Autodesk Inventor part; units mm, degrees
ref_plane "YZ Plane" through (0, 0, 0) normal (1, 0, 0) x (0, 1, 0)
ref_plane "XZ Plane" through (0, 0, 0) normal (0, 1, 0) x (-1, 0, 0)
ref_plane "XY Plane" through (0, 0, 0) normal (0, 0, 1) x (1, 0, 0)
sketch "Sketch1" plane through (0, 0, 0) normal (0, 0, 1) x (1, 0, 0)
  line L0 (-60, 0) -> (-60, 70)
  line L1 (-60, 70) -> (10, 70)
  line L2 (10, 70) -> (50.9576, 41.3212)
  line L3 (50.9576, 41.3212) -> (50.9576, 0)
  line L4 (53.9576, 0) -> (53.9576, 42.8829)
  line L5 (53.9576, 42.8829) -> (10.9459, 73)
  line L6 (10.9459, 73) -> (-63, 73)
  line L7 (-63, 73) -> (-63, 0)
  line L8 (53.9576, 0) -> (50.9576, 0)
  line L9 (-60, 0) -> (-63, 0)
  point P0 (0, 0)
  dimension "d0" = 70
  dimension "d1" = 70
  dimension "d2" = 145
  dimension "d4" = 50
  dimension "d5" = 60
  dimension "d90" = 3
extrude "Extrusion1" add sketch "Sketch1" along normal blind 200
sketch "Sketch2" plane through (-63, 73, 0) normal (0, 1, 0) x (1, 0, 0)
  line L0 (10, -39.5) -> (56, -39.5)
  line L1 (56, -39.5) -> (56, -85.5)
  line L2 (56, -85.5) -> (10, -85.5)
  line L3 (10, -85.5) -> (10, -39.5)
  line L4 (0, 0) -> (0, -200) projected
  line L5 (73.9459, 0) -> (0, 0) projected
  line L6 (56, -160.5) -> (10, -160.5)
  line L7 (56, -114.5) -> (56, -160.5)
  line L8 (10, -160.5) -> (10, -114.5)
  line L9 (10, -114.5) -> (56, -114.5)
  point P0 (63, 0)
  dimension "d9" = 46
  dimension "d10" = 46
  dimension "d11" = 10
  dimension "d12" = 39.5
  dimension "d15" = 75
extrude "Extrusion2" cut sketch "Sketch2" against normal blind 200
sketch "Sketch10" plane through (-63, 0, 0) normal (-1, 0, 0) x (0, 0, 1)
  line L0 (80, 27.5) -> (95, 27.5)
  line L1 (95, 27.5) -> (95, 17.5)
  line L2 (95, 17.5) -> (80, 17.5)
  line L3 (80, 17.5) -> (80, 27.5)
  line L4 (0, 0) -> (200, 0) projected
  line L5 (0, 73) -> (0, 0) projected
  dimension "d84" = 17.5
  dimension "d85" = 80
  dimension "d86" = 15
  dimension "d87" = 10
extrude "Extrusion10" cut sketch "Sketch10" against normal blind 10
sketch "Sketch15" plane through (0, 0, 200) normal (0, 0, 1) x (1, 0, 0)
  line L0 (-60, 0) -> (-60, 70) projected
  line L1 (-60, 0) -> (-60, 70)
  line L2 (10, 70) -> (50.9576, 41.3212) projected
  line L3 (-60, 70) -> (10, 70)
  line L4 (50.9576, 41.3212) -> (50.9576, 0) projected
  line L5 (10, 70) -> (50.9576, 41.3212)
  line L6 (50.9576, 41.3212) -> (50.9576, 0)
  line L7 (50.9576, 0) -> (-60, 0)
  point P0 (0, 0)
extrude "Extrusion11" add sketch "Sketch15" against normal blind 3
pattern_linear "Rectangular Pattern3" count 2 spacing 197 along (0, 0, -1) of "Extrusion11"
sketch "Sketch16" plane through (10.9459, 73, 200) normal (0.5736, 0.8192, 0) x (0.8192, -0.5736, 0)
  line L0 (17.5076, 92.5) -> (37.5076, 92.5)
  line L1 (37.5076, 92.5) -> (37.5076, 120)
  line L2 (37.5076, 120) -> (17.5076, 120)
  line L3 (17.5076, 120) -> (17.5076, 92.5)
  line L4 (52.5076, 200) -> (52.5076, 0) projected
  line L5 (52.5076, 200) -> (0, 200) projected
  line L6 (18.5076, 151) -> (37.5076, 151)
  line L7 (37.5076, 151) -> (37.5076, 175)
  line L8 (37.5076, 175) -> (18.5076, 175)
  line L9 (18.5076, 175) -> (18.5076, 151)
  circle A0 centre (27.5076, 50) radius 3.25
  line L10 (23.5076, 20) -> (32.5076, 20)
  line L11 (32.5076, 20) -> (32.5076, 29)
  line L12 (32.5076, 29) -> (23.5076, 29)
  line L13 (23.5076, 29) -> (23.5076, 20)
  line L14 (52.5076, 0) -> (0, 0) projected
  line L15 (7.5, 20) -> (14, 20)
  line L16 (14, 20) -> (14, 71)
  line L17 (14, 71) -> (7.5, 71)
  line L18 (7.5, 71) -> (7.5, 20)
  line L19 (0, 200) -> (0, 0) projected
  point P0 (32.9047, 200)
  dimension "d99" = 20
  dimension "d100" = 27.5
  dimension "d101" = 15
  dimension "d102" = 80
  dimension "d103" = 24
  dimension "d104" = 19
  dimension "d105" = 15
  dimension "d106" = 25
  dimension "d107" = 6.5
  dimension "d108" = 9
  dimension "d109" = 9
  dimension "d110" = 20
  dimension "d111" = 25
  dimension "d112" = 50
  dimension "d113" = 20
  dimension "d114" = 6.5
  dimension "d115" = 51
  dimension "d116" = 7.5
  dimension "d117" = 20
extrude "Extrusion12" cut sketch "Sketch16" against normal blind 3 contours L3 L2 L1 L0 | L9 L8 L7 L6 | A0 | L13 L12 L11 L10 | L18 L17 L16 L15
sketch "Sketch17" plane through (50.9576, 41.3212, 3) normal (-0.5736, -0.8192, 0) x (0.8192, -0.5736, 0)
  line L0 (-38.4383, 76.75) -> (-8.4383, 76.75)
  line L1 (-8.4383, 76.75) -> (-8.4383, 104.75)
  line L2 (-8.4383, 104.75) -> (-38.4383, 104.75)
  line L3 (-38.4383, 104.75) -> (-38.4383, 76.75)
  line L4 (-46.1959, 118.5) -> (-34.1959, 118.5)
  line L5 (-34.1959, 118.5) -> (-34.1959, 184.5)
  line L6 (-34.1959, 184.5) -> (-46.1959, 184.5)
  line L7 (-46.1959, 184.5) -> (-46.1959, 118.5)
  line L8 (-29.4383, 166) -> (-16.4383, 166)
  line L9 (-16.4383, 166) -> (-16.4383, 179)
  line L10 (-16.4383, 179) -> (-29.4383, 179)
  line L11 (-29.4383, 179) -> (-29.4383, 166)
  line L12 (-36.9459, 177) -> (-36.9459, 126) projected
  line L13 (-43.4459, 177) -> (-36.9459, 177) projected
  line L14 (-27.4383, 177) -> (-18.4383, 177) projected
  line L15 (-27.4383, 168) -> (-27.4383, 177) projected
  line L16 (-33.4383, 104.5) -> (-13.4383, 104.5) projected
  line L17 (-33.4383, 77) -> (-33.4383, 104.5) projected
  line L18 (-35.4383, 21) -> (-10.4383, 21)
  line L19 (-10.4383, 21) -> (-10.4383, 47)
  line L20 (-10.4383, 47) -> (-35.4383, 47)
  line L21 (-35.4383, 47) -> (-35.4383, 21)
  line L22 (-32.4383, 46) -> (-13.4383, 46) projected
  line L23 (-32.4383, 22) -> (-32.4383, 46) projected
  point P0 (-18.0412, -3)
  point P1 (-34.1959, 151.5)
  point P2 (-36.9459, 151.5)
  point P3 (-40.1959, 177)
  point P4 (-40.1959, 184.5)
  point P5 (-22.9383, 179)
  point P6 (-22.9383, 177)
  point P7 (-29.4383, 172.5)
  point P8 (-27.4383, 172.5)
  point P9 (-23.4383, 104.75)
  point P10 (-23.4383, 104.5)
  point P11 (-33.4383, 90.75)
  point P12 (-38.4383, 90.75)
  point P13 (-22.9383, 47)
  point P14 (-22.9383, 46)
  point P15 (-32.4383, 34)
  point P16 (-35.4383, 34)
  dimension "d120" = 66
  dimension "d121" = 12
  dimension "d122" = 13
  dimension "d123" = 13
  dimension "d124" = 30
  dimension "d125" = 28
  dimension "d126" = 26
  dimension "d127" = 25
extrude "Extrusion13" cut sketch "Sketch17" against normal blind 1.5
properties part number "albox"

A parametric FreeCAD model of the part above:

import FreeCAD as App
import Part
import Sketcher
Q = App.Units.Quantity

doc = App.newDocument("Part")
body = doc.addObject("PartDesign::Body", "Body")

# Sketch on XY plane
sketch1 = body.newObject("Sketcher::SketchObject", "Sketch")
sketch1.AttachmentSupport = (doc.getObject("XY_Plane"), [""])
sketch1.MapMode = "FlatFace"
sketch1.addGeometry(Part.LineSegment(App.Vector(-63, 0, 0), App.Vector(-60, 0, 0)), False)
sketch1.addGeometry(Part.LineSegment(App.Vector(-60, 0, 0), App.Vector(-60, 70, 0)), False)
sketch1.addGeometry(Part.LineSegment(App.Vector(-60, 70, 0), App.Vector(10, 70, 0)), False)
sketch1.addGeometry(Part.LineSegment(App.Vector(10, 70, 0), App.Vector(50.9576, 41.3212, 0)), False)
sketch1.addGeometry(Part.LineSegment(App.Vector(50.9576, 41.3212, 0), App.Vector(50.9576, 0, 0)), False)
sketch1.addGeometry(Part.LineSegment(App.Vector(50.9576, 0, 0), App.Vector(53.9576, 0, 0)), False)
sketch1.addGeometry(Part.LineSegment(App.Vector(53.9576, 0, 0), App.Vector(53.9576, 42.8829, 0)), False)
sketch1.addGeometry(Part.LineSegment(App.Vector(53.9576, 42.8829, 0), App.Vector(10.9459, 73, 0)), False)
sketch1.addGeometry(Part.LineSegment(App.Vector(10.9459, 73, 0), App.Vector(-63, 73, 0)), False)
sketch1.addGeometry(Part.LineSegment(App.Vector(-63, 73, 0), App.Vector(-63, 0, 0)), False)
sketch1.addConstraint(Sketcher.Constraint("Coincident", 0, 2, 1, 1))
sketch1.addConstraint(Sketcher.Constraint("Coincident", 1, 2, 2, 1))
sketch1.addConstraint(Sketcher.Constraint("Coincident", 2, 2, 3, 1))
sketch1.addConstraint(Sketcher.Constraint("Coincident", 3, 2, 4, 1))
sketch1.addConstraint(Sketcher.Constraint("Coincident", 4, 2, 5, 1))
sketch1.addConstraint(Sketcher.Constraint("Coincident", 5, 2, 6, 1))
sketch1.addConstraint(Sketcher.Constraint("Coincident", 6, 2, 7, 1))
sketch1.addConstraint(Sketcher.Constraint("Coincident", 7, 2, 8, 1))
sketch1.addConstraint(Sketcher.Constraint("Coincident", 8, 2, 9, 1))
sketch1.addConstraint(Sketcher.Constraint("Coincident", 9, 2, 0, 1))
sketch1.addConstraint(Sketcher.Constraint("Horizontal", 0))
sketch1.addConstraint(Sketcher.Constraint("Vertical", 1))
sketch1.addConstraint(Sketcher.Constraint("Horizontal", 2))
sketch1.addConstraint(Sketcher.Constraint("Vertical", 4))
sketch1.addConstraint(Sketcher.Constraint("Horizontal", 5))
sketch1.addConstraint(Sketcher.Constraint("Vertical", 6))
sketch1.addConstraint(Sketcher.Constraint("Horizontal", 8))
sketch1.addConstraint(Sketcher.Constraint("Vertical", 9))
sketch1.addConstraint(Sketcher.Constraint("PointOnObject", 0, 2, -1))
sketch1.addConstraint(Sketcher.Constraint("PointOnObject", 4, 2, -1))
sketch1.addConstraint(Sketcher.Constraint("Parallel", 3, 7))
sketch1.addConstraint(Sketcher.Constraint("Equal", 0, 5))
sketch1.addConstraint(Sketcher.Constraint("Equal", 2, 1))
sketch1.addConstraint(Sketcher.Constraint("DistanceX", 0, 1, 0, 2, 3.0))
sketch1.addConstraint(Sketcher.Constraint("DistanceX", 2, 1, 2, 2, 70.0))
sketch1.addConstraint(Sketcher.Constraint("Angle", 7, Q("145 deg")))
sketch1.addConstraint(Sketcher.Constraint("Distance", 3, 50.0))
sketch1.addConstraint(Sketcher.Constraint("DistanceX", 0, 2, -1, 1, 60.0))
sketch1.addConstraint(Sketcher.Constraint("DistanceY", 2, 2, 7, 2, 3.0))
sketch1.addConstraint(Sketcher.Constraint("DistanceX", 8, 2, 8, 1, 73.946))
pad1 = body.newObject("PartDesign::Pad", "Pad")
pad1.Profile = sketch1
pad1.Length = 200

# Sketch on XZ plane
sketch2 = body.newObject("Sketcher::SketchObject", "Sketch001")
sketch2.AttachmentSupport = (doc.getObject("XZ_Plane"), [""])
sketch2.MapMode = "FlatFace"
sketch2.AttachmentOffset = App.Placement(App.Vector(0, 0, -73), App.Rotation())
sketch2.addGeometry(Part.LineSegment(App.Vector(-7, 39.5, 0), App.Vector(-53, 39.5, 0)), False)
sketch2.addGeometry(Part.LineSegment(App.Vector(-53, 39.5, 0), App.Vector(-53, 85.5, 0)), False)
sketch2.addGeometry(Part.LineSegment(App.Vector(-53, 85.5, 0), App.Vector(-7, 85.5, 0)), False)
sketch2.addGeometry(Part.LineSegment(App.Vector(-7, 85.5, 0), App.Vector(-7, 39.5, 0)), False)
sketch2.addGeometry(Part.LineSegment(App.Vector(-53, 160.5, 0), App.Vector(-7, 160.5, 0)), False)
sketch2.addGeometry(Part.LineSegment(App.Vector(-7, 160.5, 0), App.Vector(-7, 114.5, 0)), False)
sketch2.addGeometry(Part.LineSegment(App.Vector(-7, 114.5, 0), App.Vector(-53, 114.5, 0)), False)
sketch2.addGeometry(Part.LineSegment(App.Vector(-53, 114.5, 0), App.Vector(-53, 160.5, 0)), False)
sketch2.addConstraint(Sketcher.Constraint("Coincident", 0, 2, 1, 1))
sketch2.addConstraint(Sketcher.Constraint("Coincident", 1, 2, 2, 1))
sketch2.addConstraint(Sketcher.Constraint("Coincident", 2, 2, 3, 1))
sketch2.addConstraint(Sketcher.Constraint("Coincident", 3, 2, 0, 1))
sketch2.addConstraint(Sketcher.Constraint("Coincident", 4, 2, 5, 1))
sketch2.addConstraint(Sketcher.Constraint("Coincident", 5, 2, 6, 1))
sketch2.addConstraint(Sketcher.Constraint("Coincident", 6, 2, 7, 1))
sketch2.addConstraint(Sketcher.Constraint("Coincident", 7, 2, 4, 1))
sketch2.addConstraint(Sketcher.Constraint("Horizontal", 0))
sketch2.addConstraint(Sketcher.Constraint("Vertical", 1))
sketch2.addConstraint(Sketcher.Constraint("Horizontal", 2))
sketch2.addConstraint(Sketcher.Constraint("Vertical", 3))
sketch2.addConstraint(Sketcher.Constraint("Horizontal", 4))
sketch2.addConstraint(Sketcher.Constraint("Vertical", 5))
sketch2.addConstraint(Sketcher.Constraint("Horizontal", 6))
sketch2.addConstraint(Sketcher.Constraint("Vertical", 7))
sketch2.addConstraint(Sketcher.Constraint("Vertical", 3, 2, 4, 2))
sketch2.addConstraint(Sketcher.Constraint("Vertical", 1, 2, 6, 2))
sketch2.addConstraint(Sketcher.Constraint("Equal", 6, 1))
sketch2.addConstraint(Sketcher.Constraint("Equal", 3, 5))
sketch2.addConstraint(Sketcher.Constraint("DistanceX", 0, 2, 0, 1, 46.0))
sketch2.addConstraint(Sketcher.Constraint("DistanceY", 2, 2, 4, 2, 75.0))
sketch2.addConstraint(Sketcher.Constraint("DistanceY", -1, 1, 0, 2, 39.5))
sketch2.addConstraint(Sketcher.Constraint("DistanceX", 0, 2, -1, 1, 53.0))
pocket1 = body.newObject("PartDesign::Pocket", "Pocket")
pocket1.Profile = sketch2
pocket1.Length = 200
pocket1.Reversed = True

# Sketch on YZ plane
sketch3 = body.newObject("Sketcher::SketchObject", "Sketch002")
sketch3.AttachmentSupport = (doc.getObject("YZ_Plane"), [""])
sketch3.MapMode = "FlatFace"
sketch3.AttachmentOffset = App.Placement(App.Vector(0, 0, -63), App.Rotation())
sketch3.addGeometry(Part.LineSegment(App.Vector(27.5, 95, 0), App.Vector(27.5, 80, 0)), False)
sketch3.addGeometry(Part.LineSegment(App.Vector(27.5, 80, 0), App.Vector(17.5, 80, 0)), False)
sketch3.addGeometry(Part.LineSegment(App.Vector(17.5, 80, 0), App.Vector(17.5, 95, 0)), False)
sketch3.addGeometry(Part.LineSegment(App.Vector(17.5, 95, 0), App.Vector(27.5, 95, 0)), False)
sketch3.addConstraint(Sketcher.Constraint("Coincident", 0, 2, 1, 1))
sketch3.addConstraint(Sketcher.Constraint("Coincident", 1, 2, 2, 1))
sketch3.addConstraint(Sketcher.Constraint("Coincident", 2, 2, 3, 1))
sketch3.addConstraint(Sketcher.Constraint("Coincident", 3, 2, 0, 1))
sketch3.addConstraint(Sketcher.Constraint("Vertical", 0))
sketch3.addConstraint(Sketcher.Constraint("Horizontal", 1))
sketch3.addConstraint(Sketcher.Constraint("Vertical", 2))
sketch3.addConstraint(Sketcher.Constraint("Horizontal", 3))
sketch3.addConstraint(Sketcher.Constraint("DistanceX", 1, 2, 1, 1, 10.0))
sketch3.addConstraint(Sketcher.Constraint("DistanceY", 0, 2, 0, 1, 15.0))
sketch3.addConstraint(Sketcher.Constraint("DistanceY", -1, 1, 0, 2, 80.0))
sketch3.addConstraint(Sketcher.Constraint("DistanceX", -1, 1, 1, 2, 17.5))
pocket2 = body.newObject("PartDesign::Pocket", "Pocket001")
pocket2.Profile = sketch3
pocket2.Length = 10
pocket2.Reversed = True

# Sketch on XY plane
sketch4 = body.newObject("Sketcher::SketchObject", "Sketch003")
sketch4.AttachmentSupport = (doc.getObject("XY_Plane"), [""])
sketch4.MapMode = "FlatFace"
sketch4.AttachmentOffset = App.Placement(App.Vector(0, 0, 200), App.Rotation())
sketch4.addGeometry(Part.LineSegment(App.Vector(-60, 70, 0), App.Vector(-60, 0, 0)), False)
sketch4.addGeometry(Part.LineSegment(App.Vector(-60, 0, 0), App.Vector(50.9576, 0, 0)), False)
sketch4.addGeometry(Part.LineSegment(App.Vector(50.9576, 0, 0), App.Vector(50.9576, 41.3212, 0)), False)
sketch4.addGeometry(Part.LineSegment(App.Vector(50.9576, 41.3212, 0), App.Vector(10, 70, 0)), False)
sketch4.addGeometry(Part.LineSegment(App.Vector(10, 70, 0), App.Vector(-60, 70, 0)), False)
sketch4.addConstraint(Sketcher.Constraint("Coincident", 0, 2, 1, 1))
sketch4.addConstraint(Sketcher.Constraint("Coincident", 1, 2, 2, 1))
sketch4.addConstraint(Sketcher.Constraint("Coincident", 2, 2, 3, 1))
sketch4.addConstraint(Sketcher.Constraint("Coincident", 3, 2, 4, 1))
sketch4.addConstraint(Sketcher.Constraint("Coincident", 4, 2, 0, 1))
sketch4.addConstraint(Sketcher.Constraint("Vertical", 0))
sketch4.addConstraint(Sketcher.Constraint("Horizontal", 1))
sketch4.addConstraint(Sketcher.Constraint("Vertical", 2))
sketch4.addConstraint(Sketcher.Constraint("Horizontal", 4))
sketch4.addConstraint(Sketcher.Constraint("PointOnObject", 0, 2, -1))
sketch4.addConstraint(Sketcher.Constraint("Equal", 4, 0))
sketch4.addConstraint(Sketcher.Constraint("DistanceX", 4, 2, 4, 1, 70.0))
sketch4.addConstraint(Sketcher.Constraint("Angle", 3, Q("145 deg")))
sketch4.addConstraint(Sketcher.Constraint("Distance", 3, 50.0))
sketch4.addConstraint(Sketcher.Constraint("DistanceX", 0, 2, -1, 1, 60.0))
pad2 = body.newObject("PartDesign::Pad", "Pad001")
pad2.Profile = sketch4
pad2.Length = 3
pad2.Reversed = True
doc.recompute()

linearpattern = body.newObject("PartDesign::LinearPattern", "LinearPattern")
linearpattern.Originals = [pad2]
linearpattern.Direction = (doc.getObject("Z_Axis"), [""])
linearpattern.Mode = "offset"
linearpattern.Offset = 197
linearpattern.Occurrences = 2
linearpattern.Reversed = True
body.Tip = linearpattern

# Sketch on an angled plane
sketch5 = body.newObject("Sketcher::SketchObject", "Sketch004")
sketch5.Placement = App.Placement(App.Vector(10.9459, 73, 200), App.Rotation(App.Vector(0.819152044, -0.573576436, 0), App.Vector(0, 0, -0.999999999), App.Vector(0.573576436, 0.819152044, 0), "ZXY"))
sketch5.addGeometry(Part.LineSegment(App.Vector(17.5076, 120, 0), App.Vector(17.5076, 92.5, 0)), False)
sketch5.addGeometry(Part.LineSegment(App.Vector(17.5076, 92.5, 0), App.Vector(37.5076, 92.5, 0)), False)
sketch5.addGeometry(Part.LineSegment(App.Vector(37.5076, 92.5, 0), App.Vector(37.5076, 120, 0)), False)
sketch5.addGeometry(Part.LineSegment(App.Vector(37.5076, 120, 0), App.Vector(17.5076, 120, 0)), False)
sketch5.addGeometry(Part.LineSegment(App.Vector(18.5076, 175, 0), App.Vector(18.5076, 151, 0)), False)
sketch5.addGeometry(Part.LineSegment(App.Vector(18.5076, 151, 0), App.Vector(37.5076, 151, 0)), False)
sketch5.addGeometry(Part.LineSegment(App.Vector(37.5076, 151, 0), App.Vector(37.5076, 175, 0)), False)
sketch5.addGeometry(Part.LineSegment(App.Vector(37.5076, 175, 0), App.Vector(18.5076, 175, 0)), False)
sketch5.addGeometry(Part.Circle(App.Vector(27.5076, 50, 0), App.Vector(0, 0, 1), 3.25), False)
sketch5.addGeometry(Part.LineSegment(App.Vector(23.5076, 29, 0), App.Vector(23.5076, 20, 0)), False)
sketch5.addGeometry(Part.LineSegment(App.Vector(23.5076, 20, 0), App.Vector(32.5076, 20, 0)), False)
sketch5.addGeometry(Part.LineSegment(App.Vector(32.5076, 20, 0), App.Vector(32.5076, 29, 0)), False)
sketch5.addGeometry(Part.LineSegment(App.Vector(32.5076, 29, 0), App.Vector(23.5076, 29, 0)), False)
sketch5.addGeometry(Part.LineSegment(App.Vector(7.5, 71, 0), App.Vector(7.5, 20, 0)), False)
sketch5.addGeometry(Part.LineSegment(App.Vector(7.5, 20, 0), App.Vector(14, 20, 0)), False)
sketch5.addGeometry(Part.LineSegment(App.Vector(14, 20, 0), App.Vector(14, 71, 0)), False)
sketch5.addGeometry(Part.LineSegment(App.Vector(14, 71, 0), App.Vector(7.5, 71, 0)), False)
sketch5.addConstraint(Sketcher.Constraint("Coincident", 0, 2, 1, 1))
sketch5.addConstraint(Sketcher.Constraint("Coincident", 1, 2, 2, 1))
sketch5.addConstraint(Sketcher.Constraint("Coincident", 2, 2, 3, 1))
sketch5.addConstraint(Sketcher.Constraint("Coincident", 3, 2, 0, 1))
sketch5.addConstraint(Sketcher.Constraint("Coincident", 4, 2, 5, 1))
sketch5.addConstraint(Sketcher.Constraint("Coincident", 5, 2, 6, 1))
sketch5.addConstraint(Sketcher.Constraint("Coincident", 6, 2, 7, 1))
sketch5.addConstraint(Sketcher.Constraint("Coincident", 7, 2, 4, 1))
sketch5.addConstraint(Sketcher.Constraint("Coincident", 9, 2, 10, 1))
sketch5.addConstraint(Sketcher.Constraint("Coincident", 10, 2, 11, 1))
sketch5.addConstraint(Sketcher.Constraint("Coincident", 11, 2, 12, 1))
sketch5.addConstraint(Sketcher.Constraint("Coincident", 12, 2, 9, 1))
sketch5.addConstraint(Sketcher.Constraint("Coincident", 13, 2, 14, 1))
sketch5.addConstraint(Sketcher.Constraint("Coincident", 14, 2, 15, 1))
sketch5.addConstraint(Sketcher.Constraint("Coincident", 15, 2, 16, 1))
sketch5.addConstraint(Sketcher.Constraint("Coincident", 16, 2, 13, 1))
sketch5.addConstraint(Sketcher.Constraint("Vertical", 0))
sketch5.addConstraint(Sketcher.Constraint("Horizontal", 1))
sketch5.addConstraint(Sketcher.Constraint("Vertical", 2))
sketch5.addConstraint(Sketcher.Constraint("Horizontal", 3))
sketch5.addConstraint(Sketcher.Constraint("Vertical", 4))
sketch5.addConstraint(Sketcher.Constraint("Horizontal", 5))
sketch5.addConstraint(Sketcher.Constraint("Vertical", 6))
sketch5.addConstraint(Sketcher.Constraint("Horizontal", 7))
sketch5.addConstraint(Sketcher.Constraint("Vertical", 9))
sketch5.addConstraint(Sketcher.Constraint("Horizontal", 10))
sketch5.addConstraint(Sketcher.Constraint("Vertical", 11))
sketch5.addConstraint(Sketcher.Constraint("Horizontal", 12))
sketch5.addConstraint(Sketcher.Constraint("Vertical", 13))
sketch5.addConstraint(Sketcher.Constraint("Horizontal", 14))
sketch5.addConstraint(Sketcher.Constraint("Vertical", 15))
sketch5.addConstraint(Sketcher.Constraint("Horizontal", 16))
sketch5.addConstraint(Sketcher.Constraint("Horizontal", 10, 2, 13, 2))
sketch5.addConstraint(Sketcher.Constraint("Vertical", 2, 2, 5, 2))
sketch5.addConstraint(Sketcher.Constraint("Equal", 12, 9))
sketch5.addConstraint(Sketcher.Constraint("Diameter", 8, 6.5))
sketch5.addConstraint(Sketcher.Constraint("DistanceX", 1, 1, 1, 2, 20.0))
sketch5.addConstraint(Sketcher.Constraint("DistanceX", 5, 1, 5, 2, 19.0))
sketch5.addConstraint(Sketcher.Constraint("DistanceX", 10, 1, 10, 2, 9.0))
sketch5.addConstraint(Sketcher.Constraint("DistanceY", 4, 2, 4, 1, 24.0))
sketch5.addConstraint(Sketcher.Constraint("DistanceY", 13, 2, 13, 1, 51.0))
sketch5.addConstraint(Sketcher.Constraint("DistanceX", 14, 1, 14, 2, 6.5))
sketch5.addConstraint(Sketcher.Constraint("DistanceY", 0, 2, 0, 1, 27.5))
sketch5.addConstraint(Sketcher.Constraint("DistanceY", -1, 1, 8, 3, 50.0))
sketch5.addConstraint(Sketcher.Constraint("DistanceY", -1, 1, 9, 2, 20.0))
sketch5.addConstraint(Sketcher.Constraint("DistanceX", 4, 2, 8, 3, 9.0))
sketch5.addConstraint(Sketcher.Constraint("DistanceX", 0, 2, 10, 2, 15.0))
sketch5.addConstraint(Sketcher.Constraint("DistanceX", -1, 1, 13, 2, 7.5))
sketch5.addConstraint(Sketcher.Constraint("DistanceY", -1, 1, 2, 2, 120.0))
sketch5.addConstraint(Sketcher.Constraint("DistanceY", -1, 1, 4, 2, 151.0))
sketch5.addConstraint(Sketcher.Constraint("DistanceX", -1, 1, 8, 3, 27.5076))
pocket3 = body.newObject("PartDesign::Pocket", "Pocket002")
pocket3.Profile = sketch5
pocket3.Length = 3

# Sketch on an angled plane
sketch6 = body.newObject("Sketcher::SketchObject", "Sketch005")
sketch6.Placement = App.Placement(App.Vector(50.9576, 41.3212, 3), App.Rotation(App.Vector(0.819152044, -0.573576436, 0), App.Vector(0, 0, 0.999999999), App.Vector(-0.573576436, -0.819152044, 0), "ZXY"))
sketch6.addGeometry(Part.LineSegment(App.Vector(-38.4383, 104.75, 0), App.Vector(-38.4383, 76.75, 0)), False)
sketch6.addGeometry(Part.LineSegment(App.Vector(-38.4383, 76.75, 0), App.Vector(-8.4383, 76.75, 0)), False)
sketch6.addGeometry(Part.LineSegment(App.Vector(-8.4383, 76.75, 0), App.Vector(-8.4383, 104.75, 0)), False)
sketch6.addGeometry(Part.LineSegment(App.Vector(-8.4383, 104.75, 0), App.Vector(-38.4383, 104.75, 0)), False)
sketch6.addGeometry(Part.LineSegment(App.Vector(-46.1959, 184.5, 0), App.Vector(-46.1959, 118.5, 0)), False)
sketch6.addGeometry(Part.LineSegment(App.Vector(-46.1959, 118.5, 0), App.Vector(-34.1959, 118.5, 0)), False)
sketch6.addGeometry(Part.LineSegment(App.Vector(-34.1959, 118.5, 0), App.Vector(-34.1959, 184.5, 0)), False)
sketch6.addGeometry(Part.LineSegment(App.Vector(-34.1959, 184.5, 0), App.Vector(-46.1959, 184.5, 0)), False)
sketch6.addGeometry(Part.LineSegment(App.Vector(-29.4383, 179, 0), App.Vector(-29.4383, 166, 0)), False)
sketch6.addGeometry(Part.LineSegment(App.Vector(-29.4383, 166, 0), App.Vector(-16.4383, 166, 0)), False)
sketch6.addGeometry(Part.LineSegment(App.Vector(-16.4383, 166, 0), App.Vector(-16.4383, 179, 0)), False)
sketch6.addGeometry(Part.LineSegment(App.Vector(-16.4383, 179, 0), App.Vector(-29.4383, 179, 0)), False)
sketch6.addGeometry(Part.LineSegment(App.Vector(-35.4383, 47, 0), App.Vector(-35.4383, 21, 0)), False)
sketch6.addGeometry(Part.LineSegment(App.Vector(-35.4383, 21, 0), App.Vector(-10.4383, 21, 0)), False)
sketch6.addGeometry(Part.LineSegment(App.Vector(-10.4383, 21, 0), App.Vector(-10.4383, 47, 0)), False)
sketch6.addGeometry(Part.LineSegment(App.Vector(-10.4383, 47, 0), App.Vector(-35.4383, 47, 0)), False)
sketch6.addConstraint(Sketcher.Constraint("Coincident", 0, 2, 1, 1))
sketch6.addConstraint(Sketcher.Constraint("Coincident", 1, 2, 2, 1))
sketch6.addConstraint(Sketcher.Constraint("Coincident", 2, 2, 3, 1))
sketch6.addConstraint(Sketcher.Constraint("Coincident", 3, 2, 0, 1))
sketch6.addConstraint(Sketcher.Constraint("Coincident", 4, 2, 5, 1))
sketch6.addConstraint(Sketcher.Constraint("Coincident", 5, 2, 6, 1))
sketch6.addConstraint(Sketcher.Constraint("Coincident", 6, 2, 7, 1))
sketch6.addConstraint(Sketcher.Constraint("Coincident", 7, 2, 4, 1))
sketch6.addConstraint(Sketcher.Constraint("Coincident", 8, 2, 9, 1))
sketch6.addConstraint(Sketcher.Constraint("Coincident", 9, 2, 10, 1))
sketch6.addConstraint(Sketcher.Constraint("Coincident", 10, 2, 11, 1))
sketch6.addConstraint(Sketcher.Constraint("Coincident", 11, 2, 8, 1))
sketch6.addConstraint(Sketcher.Constraint("Coincident", 12, 2, 13, 1))
sketch6.addConstraint(Sketcher.Constraint("Coincident", 13, 2, 14, 1))
sketch6.addConstraint(Sketcher.Constraint("Coincident", 14, 2, 15, 1))
sketch6.addConstraint(Sketcher.Constraint("Coincident", 15, 2, 12, 1))
sketch6.addConstraint(Sketcher.Constraint("Vertical", 0))
sketch6.addConstraint(Sketcher.Constraint("Horizontal", 1))
sketch6.addConstraint(Sketcher.Constraint("Vertical", 2))
sketch6.addConstraint(Sketcher.Constraint("Horizontal", 3))
sketch6.addConstraint(Sketcher.Constraint("Vertical", 4))
sketch6.addConstraint(Sketcher.Constraint("Horizontal", 5))
sketch6.addConstraint(Sketcher.Constraint("Vertical", 6))
sketch6.addConstraint(Sketcher.Constraint("Horizontal", 7))
sketch6.addConstraint(Sketcher.Constraint("Vertical", 8))
sketch6.addConstraint(Sketcher.Constraint("Horizontal", 9))
sketch6.addConstraint(Sketcher.Constraint("Vertical", 10))
sketch6.addConstraint(Sketcher.Constraint("Horizontal", 11))
sketch6.addConstraint(Sketcher.Constraint("Vertical", 12))
sketch6.addConstraint(Sketcher.Constraint("Horizontal", 13))
sketch6.addConstraint(Sketcher.Constraint("Vertical", 14))
sketch6.addConstraint(Sketcher.Constraint("Horizontal", 15))
sketch6.addConstraint(Sketcher.Constraint("Equal", 11, 8))
sketch6.addConstraint(Sketcher.Constraint("DistanceX", 1, 1, 1, 2, 30.0))
sketch6.addConstraint(Sketcher.Constraint("DistanceX", 5, 1, 5, 2, 12.0))
sketch6.addConstraint(Sketcher.Constraint("DistanceX", 9, 1, 9, 2, 13.0))
sketch6.addConstraint(Sketcher.Constraint("DistanceX", 13, 1, 13, 2, 25.0))
sketch6.addConstraint(Sketcher.Constraint("DistanceY", 0, 2, 0, 1, 28.0))
sketch6.addConstraint(Sketcher.Constraint("DistanceY", 4, 2, 4, 1, 66.0))
sketch6.addConstraint(Sketcher.Constraint("DistanceY", 12, 2, 12, 1, 26.0))
sketch6.addConstraint(Sketcher.Constraint("DistanceX", 0, 2, 13, 2, 28.0))
sketch6.addConstraint(Sketcher.Constraint("DistanceY", -1, 1, 8, 2, 166.0))
sketch6.addConstraint(Sketcher.Constraint("DistanceY", -1, 1, 12, 2, 21.0))
sketch6.addConstraint(Sketcher.Constraint("DistanceX", 3, 2, 8, 2, 9.0))
sketch6.addConstraint(Sketcher.Constraint("DistanceY", -1, 1, 4, 2, 118.5))
sketch6.addConstraint(Sketcher.Constraint("DistanceY", -1, 1, 0, 2, 76.75))
sketch6.addConstraint(Sketcher.Constraint("DistanceX", 4, 2, -1, 1, 46.196))
sketch6.addConstraint(Sketcher.Constraint("DistanceX", 0, 2, -1, 1, 38.4383))
pocket4 = body.newObject("PartDesign::Pocket", "Pocket003")
pocket4.Profile = sketch6
pocket4.Length = 1.5

doc.recompute()
